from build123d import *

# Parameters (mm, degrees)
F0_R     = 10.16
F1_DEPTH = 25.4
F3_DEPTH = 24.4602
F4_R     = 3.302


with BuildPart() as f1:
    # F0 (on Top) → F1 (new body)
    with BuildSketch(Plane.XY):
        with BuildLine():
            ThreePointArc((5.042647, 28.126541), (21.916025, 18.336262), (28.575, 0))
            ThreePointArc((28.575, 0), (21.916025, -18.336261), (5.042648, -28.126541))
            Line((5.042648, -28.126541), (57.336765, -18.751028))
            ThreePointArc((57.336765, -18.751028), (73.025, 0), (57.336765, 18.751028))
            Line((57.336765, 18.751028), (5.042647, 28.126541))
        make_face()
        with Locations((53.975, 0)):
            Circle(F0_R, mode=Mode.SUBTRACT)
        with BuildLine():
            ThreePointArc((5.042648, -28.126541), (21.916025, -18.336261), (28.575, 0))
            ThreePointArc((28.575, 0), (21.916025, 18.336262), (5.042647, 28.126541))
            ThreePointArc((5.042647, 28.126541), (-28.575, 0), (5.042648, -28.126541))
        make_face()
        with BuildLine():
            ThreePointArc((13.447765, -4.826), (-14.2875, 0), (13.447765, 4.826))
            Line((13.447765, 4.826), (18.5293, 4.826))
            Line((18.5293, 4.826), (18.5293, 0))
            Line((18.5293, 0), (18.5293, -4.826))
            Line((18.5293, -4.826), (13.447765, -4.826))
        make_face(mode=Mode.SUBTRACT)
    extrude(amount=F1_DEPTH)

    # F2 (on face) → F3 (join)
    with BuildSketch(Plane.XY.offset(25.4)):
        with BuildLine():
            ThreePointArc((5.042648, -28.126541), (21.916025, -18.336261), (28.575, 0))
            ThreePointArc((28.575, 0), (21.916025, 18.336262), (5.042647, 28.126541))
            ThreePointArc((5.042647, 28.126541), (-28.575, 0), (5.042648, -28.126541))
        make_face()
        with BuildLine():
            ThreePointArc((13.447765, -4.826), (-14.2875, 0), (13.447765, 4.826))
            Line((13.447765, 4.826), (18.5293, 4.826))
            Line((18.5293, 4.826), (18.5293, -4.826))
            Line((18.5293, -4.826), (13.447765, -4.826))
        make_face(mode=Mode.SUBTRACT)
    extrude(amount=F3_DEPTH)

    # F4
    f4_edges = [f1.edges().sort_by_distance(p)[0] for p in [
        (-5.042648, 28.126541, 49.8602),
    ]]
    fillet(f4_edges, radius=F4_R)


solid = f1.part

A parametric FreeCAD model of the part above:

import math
import FreeCAD as App
import Part
import Sketcher

V = App.Vector
Q = App.Units.Quantity


def edges_at(feature, points):
    """Names of the edges that pass closest to the given points."""
    edges = feature.Shape.Edges
    near = lambda p: min(range(len(edges)), key=lambda i: edges[i].distToShape(Part.Vertex(*p))[0])
    return sorted({f"Edge{near(p) + 1}" for p in points})

doc = App.newDocument("Part")
body = doc.addObject("PartDesign::Body", "Body")

# Sketch on XY plane
sketch1 = body.newObject("Sketcher::SketchObject", "Sketch")
sketch1.AttachmentSupport = (doc.getObject("XY_Plane"), [""])
sketch1.MapMode = "FlatFace"
sketch1.addGeometry(Part.LineSegment(V(57.336765, 18.751028, 0), V(5.042647, 28.126541, 0)), False)
sketch1.addGeometry(Part.ArcOfCircle(Part.Circle(V(0, 0, 0), V(0, 0, 1), 28.575), math.radians(79.835751), math.radians(280.164251)), False)
sketch1.addGeometry(Part.LineSegment(V(5.042648, -28.126541, 0), V(57.336765, -18.751028, 0)), False)
sketch1.addGeometry(Part.ArcOfCircle(Part.Circle(V(53.975, 0, 0), V(0, 0, 1), 19.05), math.radians(-79.835749), math.radians(79.835749)), False)
sketch1.addGeometry(Part.LineSegment(V(18.5293, -4.826, 0), V(13.447765, -4.826, 0)), False)
sketch1.addGeometry(Part.ArcOfCircle(Part.Circle(V(0, 0, 0), V(0, 0, 1), 14.2875), math.radians(19.741542), math.radians(340.258458)), False)
sketch1.addGeometry(Part.LineSegment(V(13.447765, 4.826, 0), V(18.5293, 4.826, 0)), False)
sketch1.addGeometry(Part.LineSegment(V(18.5293, 4.826, 0), V(18.5293, -4.826, 0)), False)
sketch1.addGeometry(Part.Circle(V(53.975, 0, 0), V(0, 0, 1), 10.16), False)
sketch1.addConstraint(Sketcher.Constraint("Tangent", 0, 2, 1, 1))
sketch1.addConstraint(Sketcher.Constraint("Tangent", 1, 2, 2, 1))
sketch1.addConstraint(Sketcher.Constraint("Tangent", 2, 2, 3, 1))
sketch1.addConstraint(Sketcher.Constraint("Tangent", 3, 2, 0, 1))
sketch1.addConstraint(Sketcher.Constraint("Coincident", 4, 2, 5, 2))
sketch1.addConstraint(Sketcher.Constraint("Coincident", 5, 1, 6, 1))
sketch1.addConstraint(Sketcher.Constraint("Coincident", 6, 2, 7, 1))
sketch1.addConstraint(Sketcher.Constraint("Coincident", 7, 2, 4, 1))
sketch1.addConstraint(Sketcher.Constraint("Horizontal", 4))
sketch1.addConstraint(Sketcher.Constraint("Horizontal", 6))
sketch1.addConstraint(Sketcher.Constraint("Vertical", 7))
sketch1.addConstraint(Sketcher.Constraint("Coincident", 1, 3, -1, 1))
sketch1.addConstraint(Sketcher.Constraint("Coincident", 5, 3, -1, 1))
sketch1.addConstraint(Sketcher.Constraint("Coincident", 8, 3, 3, 3))
sketch1.addConstraint(Sketcher.Constraint("PointOnObject", 3, 3, -1))
sketch1.addConstraint(Sketcher.Constraint("Vertical", 4, 2, 5, 1))
sketch1.addConstraint(Sketcher.Constraint("Diameter", 8, Q("0.8 in")))
sketch1.addConstraint(Sketcher.Constraint("Radius", 3, Q("0.75 in")))
sketch1.addConstraint(Sketcher.Constraint("Radius", 1, Q("1.125 in")))
sketch1.addConstraint(Sketcher.Constraint("Radius", 5, Q("0.5625 in")))
sketch1.addConstraint(Sketcher.Constraint("DistanceY", 7, 2, 7, 1, Q("0.38 in")))
sketch1.addConstraint(Sketcher.Constraint("DistanceX", -1, 1, 3, 3, Q("2.125 in")))
sketch1.addConstraint(Sketcher.Constraint("DistanceX", -1, 1, 6, 2, Q("0.7295 in")))
pad1 = body.newObject("PartDesign::Pad", "Pad")
pad1.Profile = sketch1
pad1.Length = Q("1 in")

# Sketch on XY plane
sketch2 = body.newObject("Sketcher::SketchObject", "Sketch001")
sketch2.AttachmentSupport = (doc.getObject("XY_Plane"), [""])
sketch2.MapMode = "FlatFace"
sketch2.AttachmentOffset = App.Placement(V(0, 0, 1 * 25.4), App.Rotation())
sketch2.addGeometry(Part.ArcOfCircle(Part.Circle(V(0, 0, 0), V(0, 0, 1), 28.575), math.radians(-79.83575), math.radians(0)), False)
sketch2.addGeometry(Part.ArcOfCircle(Part.Circle(V(0.000003, 0.000002, 0), V(0, 0, 1), 28.574997), math.radians(-0.000004), math.radians(79.835756)), False)
sketch2.addGeometry(Part.ArcOfCircle(Part.Circle(V(0, 0, 0), V(0, 0, 1), 28.575), math.radians(79.835751), math.radians(280.164251)), False)
sketch2.addGeometry(Part.LineSegment(V(18.5293, -4.826, 0), V(13.447765, -4.826, 0)), False)
sketch2.addGeometry(Part.ArcOfCircle(Part.Circle(V(0, 0, 0), V(0, 0, 1), 14.2875), math.radians(19.741542), math.radians(340.258458)), False)
sketch2.addGeometry(Part.LineSegment(V(13.447765, 4.826, 0), V(18.5293, 4.826, 0)), False)
sketch2.addGeometry(Part.LineSegment(V(18.5293, 4.826, 0), V(18.5293, -4.826, 0)), False)
sketch2.addConstraint(Sketcher.Constraint("Tangent", 0, 2, 1, 1))
sketch2.addConstraint(Sketcher.Constraint("Tangent", 1, 2, 2, 1))
sketch2.addConstraint(Sketcher.Constraint("Tangent", 2, 2, 0, 1))
sketch2.addConstraint(Sketcher.Constraint("Coincident", 3, 2, 4, 2))
sketch2.addConstraint(Sketcher.Constraint("Coincident", 4, 1, 5, 1))
sketch2.addConstraint(Sketcher.Constraint("Coincident", 5, 2, 6, 1))
sketch2.addConstraint(Sketcher.Constraint("Coincident", 6, 2, 3, 1))
sketch2.addConstraint(Sketcher.Constraint("Horizontal", 3))
sketch2.addConstraint(Sketcher.Constraint("Horizontal", 5))
sketch2.addConstraint(Sketcher.Constraint("Vertical", 6))
sketch2.addConstraint(Sketcher.Constraint("Coincident", 0, 3, -1, 1))
sketch2.addConstraint(Sketcher.Constraint("Coincident", 4, 3, -1, 1))
sketch2.addConstraint(Sketcher.Constraint("PointOnObject", 0, 2, -1))
sketch2.addConstraint(Sketcher.Constraint("Vertical", 1, 2, 2, 2))
sketch2.addConstraint(Sketcher.Constraint("Vertical", 3, 2, 4, 1))
sketch2.addConstraint(Sketcher.Constraint("Radius", 0, Q("1.125 in")))
sketch2.addConstraint(Sketcher.Constraint("Radius", 4, Q("0.5625 in")))
sketch2.addConstraint(Sketcher.Constraint("DistanceY", 6, 2, 6, 1, Q("0.38 in")))
sketch2.addConstraint(Sketcher.Constraint("DistanceX", -1, 1, 5, 2, Q("0.7295 in")))
sketch2.addConstraint(Sketcher.Constraint("DistanceY", -1, 1, 1, 2, Q("28.126541 mm")))
pad2 = body.newObject("PartDesign::Pad", "Pad001")
pad2.Profile = sketch2
pad2.Length = Q("0.963 in")
doc.recompute()

fillet = body.newObject("PartDesign::Fillet", "Fillet")
fillet.Base = (pad2, edges_at(pad2, [(-28.575, 0, 49.86)]))
fillet.Radius = Q("0.13 in")

doc.recompute()
